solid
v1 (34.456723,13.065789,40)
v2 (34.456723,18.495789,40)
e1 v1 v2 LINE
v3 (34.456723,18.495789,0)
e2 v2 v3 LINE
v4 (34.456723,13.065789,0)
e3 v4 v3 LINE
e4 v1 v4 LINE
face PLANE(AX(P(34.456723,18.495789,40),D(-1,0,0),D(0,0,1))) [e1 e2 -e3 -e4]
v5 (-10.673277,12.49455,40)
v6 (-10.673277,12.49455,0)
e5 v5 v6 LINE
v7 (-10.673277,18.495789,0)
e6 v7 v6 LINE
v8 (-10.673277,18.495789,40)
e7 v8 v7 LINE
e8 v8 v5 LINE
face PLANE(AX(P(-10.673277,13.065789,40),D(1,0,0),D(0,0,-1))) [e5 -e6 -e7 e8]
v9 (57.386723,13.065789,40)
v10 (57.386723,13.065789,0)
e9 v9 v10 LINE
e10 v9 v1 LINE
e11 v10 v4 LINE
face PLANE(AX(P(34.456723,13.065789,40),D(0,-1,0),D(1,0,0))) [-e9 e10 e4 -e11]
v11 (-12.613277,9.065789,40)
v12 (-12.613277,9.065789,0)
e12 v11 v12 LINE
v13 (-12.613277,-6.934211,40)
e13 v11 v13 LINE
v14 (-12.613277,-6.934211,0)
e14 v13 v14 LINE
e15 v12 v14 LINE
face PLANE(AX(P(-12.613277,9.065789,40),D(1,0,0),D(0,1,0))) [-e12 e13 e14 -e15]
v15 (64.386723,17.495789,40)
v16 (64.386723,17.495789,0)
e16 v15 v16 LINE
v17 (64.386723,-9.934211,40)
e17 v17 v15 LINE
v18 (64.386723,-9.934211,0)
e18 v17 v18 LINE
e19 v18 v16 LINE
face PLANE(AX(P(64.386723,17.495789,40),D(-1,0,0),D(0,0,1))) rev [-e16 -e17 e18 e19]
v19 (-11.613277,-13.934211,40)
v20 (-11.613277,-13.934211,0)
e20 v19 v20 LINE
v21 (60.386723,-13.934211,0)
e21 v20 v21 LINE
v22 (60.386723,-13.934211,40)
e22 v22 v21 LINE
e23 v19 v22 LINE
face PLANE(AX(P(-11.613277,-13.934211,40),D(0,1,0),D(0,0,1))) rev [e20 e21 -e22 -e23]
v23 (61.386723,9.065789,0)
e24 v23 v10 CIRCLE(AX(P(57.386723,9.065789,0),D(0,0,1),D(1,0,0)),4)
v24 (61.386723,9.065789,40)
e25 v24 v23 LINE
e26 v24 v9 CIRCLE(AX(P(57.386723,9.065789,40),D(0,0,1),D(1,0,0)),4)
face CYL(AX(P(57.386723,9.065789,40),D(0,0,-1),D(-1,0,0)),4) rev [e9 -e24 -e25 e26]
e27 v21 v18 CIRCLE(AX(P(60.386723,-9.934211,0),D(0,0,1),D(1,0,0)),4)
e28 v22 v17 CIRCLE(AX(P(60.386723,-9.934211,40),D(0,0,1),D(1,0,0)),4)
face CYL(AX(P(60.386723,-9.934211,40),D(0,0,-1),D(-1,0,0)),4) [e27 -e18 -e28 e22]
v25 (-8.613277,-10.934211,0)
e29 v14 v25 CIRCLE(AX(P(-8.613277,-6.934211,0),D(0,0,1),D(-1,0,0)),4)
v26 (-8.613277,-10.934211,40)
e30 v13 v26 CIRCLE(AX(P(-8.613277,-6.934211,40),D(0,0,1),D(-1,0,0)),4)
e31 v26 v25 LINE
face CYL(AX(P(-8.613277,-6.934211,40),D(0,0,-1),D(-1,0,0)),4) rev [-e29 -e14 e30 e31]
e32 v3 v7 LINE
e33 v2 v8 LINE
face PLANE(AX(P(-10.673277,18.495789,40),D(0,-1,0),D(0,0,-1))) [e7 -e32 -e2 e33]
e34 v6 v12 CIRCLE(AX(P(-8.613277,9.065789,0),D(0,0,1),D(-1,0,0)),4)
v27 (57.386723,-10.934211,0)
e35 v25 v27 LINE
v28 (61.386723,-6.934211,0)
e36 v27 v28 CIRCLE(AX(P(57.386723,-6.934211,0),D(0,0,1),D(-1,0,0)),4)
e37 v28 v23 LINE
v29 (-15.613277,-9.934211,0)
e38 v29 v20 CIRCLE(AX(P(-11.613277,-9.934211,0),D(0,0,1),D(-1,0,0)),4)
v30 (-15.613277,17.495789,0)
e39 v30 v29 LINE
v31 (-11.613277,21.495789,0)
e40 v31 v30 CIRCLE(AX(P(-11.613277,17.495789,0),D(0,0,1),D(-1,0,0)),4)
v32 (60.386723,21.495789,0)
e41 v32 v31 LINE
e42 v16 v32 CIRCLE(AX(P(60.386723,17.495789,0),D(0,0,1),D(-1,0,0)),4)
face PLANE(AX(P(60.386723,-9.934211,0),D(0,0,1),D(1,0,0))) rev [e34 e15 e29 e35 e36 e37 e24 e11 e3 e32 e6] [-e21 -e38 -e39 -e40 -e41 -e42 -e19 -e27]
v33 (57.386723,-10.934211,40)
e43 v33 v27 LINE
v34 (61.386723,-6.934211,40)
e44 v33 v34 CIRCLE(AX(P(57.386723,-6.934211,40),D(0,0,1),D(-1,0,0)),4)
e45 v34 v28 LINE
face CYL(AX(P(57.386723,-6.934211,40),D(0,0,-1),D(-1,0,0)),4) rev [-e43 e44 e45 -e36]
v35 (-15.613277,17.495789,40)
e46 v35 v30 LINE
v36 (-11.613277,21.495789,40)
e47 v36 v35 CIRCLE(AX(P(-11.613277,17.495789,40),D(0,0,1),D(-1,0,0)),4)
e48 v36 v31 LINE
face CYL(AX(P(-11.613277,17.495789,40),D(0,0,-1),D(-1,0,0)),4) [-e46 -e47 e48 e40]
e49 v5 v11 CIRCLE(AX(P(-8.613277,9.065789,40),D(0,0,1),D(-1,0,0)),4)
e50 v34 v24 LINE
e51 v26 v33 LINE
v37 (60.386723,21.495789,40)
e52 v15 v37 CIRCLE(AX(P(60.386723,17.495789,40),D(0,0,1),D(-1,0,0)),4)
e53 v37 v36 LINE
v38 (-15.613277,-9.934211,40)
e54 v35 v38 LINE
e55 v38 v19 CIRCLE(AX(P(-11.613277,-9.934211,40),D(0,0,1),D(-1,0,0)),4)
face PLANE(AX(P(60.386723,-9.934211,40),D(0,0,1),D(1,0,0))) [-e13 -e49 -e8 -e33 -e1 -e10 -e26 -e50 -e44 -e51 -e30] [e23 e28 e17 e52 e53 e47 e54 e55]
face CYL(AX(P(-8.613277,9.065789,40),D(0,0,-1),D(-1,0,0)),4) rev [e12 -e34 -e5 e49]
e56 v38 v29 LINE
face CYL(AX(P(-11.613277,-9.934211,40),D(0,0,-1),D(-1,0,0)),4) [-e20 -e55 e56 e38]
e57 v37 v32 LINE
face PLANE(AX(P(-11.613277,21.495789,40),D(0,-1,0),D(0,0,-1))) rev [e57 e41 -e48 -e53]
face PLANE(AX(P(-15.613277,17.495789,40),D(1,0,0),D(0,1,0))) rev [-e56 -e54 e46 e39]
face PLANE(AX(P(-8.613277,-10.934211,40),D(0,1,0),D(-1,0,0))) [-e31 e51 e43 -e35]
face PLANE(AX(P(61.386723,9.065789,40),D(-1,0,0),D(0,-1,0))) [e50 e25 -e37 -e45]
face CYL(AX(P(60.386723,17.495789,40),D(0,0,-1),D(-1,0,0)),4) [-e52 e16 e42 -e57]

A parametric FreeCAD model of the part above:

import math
import FreeCAD as App
import Part
import Sketcher
from FreeCAD import Vector
Q = App.Units.Quantity

doc = App.newDocument("Part")
body = doc.addObject("PartDesign::Body", "Body")

sketch1 = body.newObject("Sketcher::SketchObject", "Sketch")
sketch1.AttachmentSupport = (doc.getObject("XY_Plane"), [""])
sketch1.MapMode = "FlatFace"
sketch1.addGeometry(Part.LineSegment(Vector(60.4, 21.5, 0), Vector(-11.6, 21.5, 0)), False)
sketch1.addGeometry(Part.ArcOfCircle(Part.Circle(Vector(-11.6, 17.5, 0), Vector(0, 0, 1), 4), math.radians(90), math.radians(180)), False)
sketch1.addGeometry(Part.LineSegment(Vector(-15.6, 17.5, 0), Vector(-15.6, -9.9, 0)), False)
sketch1.addGeometry(Part.ArcOfCircle(Part.Circle(Vector(-11.6, -9.9, 0), Vector(0, 0, 1), 4), math.radians(180), math.radians(270)), False)
sketch1.addGeometry(Part.LineSegment(Vector(-11.6, -13.9, 0), Vector(60.4, -13.9, 0)), False)
sketch1.addGeometry(Part.ArcOfCircle(Part.Circle(Vector(60.4, -9.9, 0), Vector(0, 0, 1), 4), math.radians(-90), math.radians(0)), False)
sketch1.addGeometry(Part.LineSegment(Vector(64.4, -9.9, 0), Vector(64.4, 17.5, 0)), False)
sketch1.addGeometry(Part.ArcOfCircle(Part.Circle(Vector(60.4, 17.5, 0), Vector(0, 0, 1), 4), math.radians(0), math.radians(90)), False)
sketch1.addGeometry(Part.LineSegment(Vector(-10.7, 18.5, 0), Vector(34.5, 18.5, 0)), False)
sketch1.addGeometry(Part.LineSegment(Vector(34.5, 18.5, 0), Vector(34.5, 13.1, 0)), False)
sketch1.addGeometry(Part.LineSegment(Vector(34.5, 13.1, 0), Vector(57.4, 13.1, 0)), False)
sketch1.addGeometry(Part.ArcOfCircle(Part.Circle(Vector(57.4, 9.1, 0), Vector(0, 0, 1), 4), math.radians(0), math.radians(90)), False)
sketch1.addGeometry(Part.LineSegment(Vector(61.4, 9.1, 0), Vector(61.4, -6.9, 0)), False)
sketch1.addGeometry(Part.ArcOfCircle(Part.Circle(Vector(57.4, -6.9, 0), Vector(0, 0, 1), 4), math.radians(-90), math.radians(0)), False)
sketch1.addGeometry(Part.LineSegment(Vector(57.4, -10.9, 0), Vector(-8.6, -10.9, 0)), False)
sketch1.addGeometry(Part.ArcOfCircle(Part.Circle(Vector(-8.6, -6.9, 0), Vector(0, 0, 1), 4), math.radians(180), math.radians(270)), False)
sketch1.addGeometry(Part.LineSegment(Vector(-12.6, -6.9, 0), Vector(-12.6, 9.1, 0)), False)
sketch1.addGeometry(Part.ArcOfCircle(Part.Circle(Vector(-8.6, 9.1, 0), Vector(0, 0, 1), 4), math.radians(121), math.radians(180)), False)
sketch1.addGeometry(Part.LineSegment(Vector(-10.7, 12.5, 0), Vector(-10.7, 18.5, 0)), False)
sketch1.addConstraint(Sketcher.Constraint("Tangent", 0, 2, 1, 1))
sketch1.addConstraint(Sketcher.Constraint("Tangent", 1, 2, 2, 1))
sketch1.addConstraint(Sketcher.Constraint("Tangent", 2, 2, 3, 1))
sketch1.addConstraint(Sketcher.Constraint("Tangent", 3, 2, 4, 1))
sketch1.addConstraint(Sketcher.Constraint("Tangent", 4, 2, 5, 1))
sketch1.addConstraint(Sketcher.Constraint("Tangent", 5, 2, 6, 1))
sketch1.addConstraint(Sketcher.Constraint("Tangent", 6, 2, 7, 1))
sketch1.addConstraint(Sketcher.Constraint("Tangent", 7, 2, 0, 1))
sketch1.addConstraint(Sketcher.Constraint("Coincident", 8, 2, 9, 1))
sketch1.addConstraint(Sketcher.Constraint("Coincident", 9, 2, 10, 1))
sketch1.addConstraint(Sketcher.Constraint("Tangent", 10, 2, 11, 2))
sketch1.addConstraint(Sketcher.Constraint("Tangent", 11, 1, 12, 1))
sketch1.addConstraint(Sketcher.Constraint("Tangent", 12, 2, 13, 2))
sketch1.addConstraint(Sketcher.Constraint("Tangent", 13, 1, 14, 1))
sketch1.addConstraint(Sketcher.Constraint("Tangent", 14, 2, 15, 2))
sketch1.addConstraint(Sketcher.Constraint("Tangent", 15, 1, 16, 1))
sketch1.addConstraint(Sketcher.Constraint("Tangent", 16, 2, 17, 2))
sketch1.addConstraint(Sketcher.Constraint("Coincident", 17, 1, 18, 1))
sketch1.addConstraint(Sketcher.Constraint("Coincident", 18, 2, 8, 1))
sketch1.addConstraint(Sketcher.Constraint("Horizontal", 0))
sketch1.addConstraint(Sketcher.Constraint("Vertical", 2))
sketch1.addConstraint(Sketcher.Constraint("Horizontal", 4))
sketch1.addConstraint(Sketcher.Constraint("Vertical", 6))
sketch1.addConstraint(Sketcher.Constraint("Horizontal", 8))
sketch1.addConstraint(Sketcher.Constraint("Vertical", 9))
sketch1.addConstraint(Sketcher.Constraint("Horizontal", 10))
sketch1.addConstraint(Sketcher.Constraint("Vertical", 12))
sketch1.addConstraint(Sketcher.Constraint("Horizontal", 14))
sketch1.addConstraint(Sketcher.Constraint("Vertical", 16))
sketch1.addConstraint(Sketcher.Constraint("Vertical", 18))
sketch1.addConstraint(Sketcher.Constraint("Equal", 1, 3))
sketch1.addConstraint(Sketcher.Constraint("Equal", 3, 5))
sketch1.addConstraint(Sketcher.Constraint("Equal", 5, 7))
sketch1.addConstraint(Sketcher.Constraint("Equal", 7, 11))
sketch1.addConstraint(Sketcher.Constraint("Equal", 11, 13))
sketch1.addConstraint(Sketcher.Constraint("Equal", 13, 15))
sketch1.addConstraint(Sketcher.Constraint("Equal", 15, 17))
sketch1.addConstraint(Sketcher.Constraint("Horizontal", 11, 3, 17, 3))
sketch1.addConstraint(Sketcher.Constraint("Radius", 1, Q("4 mm")))
sketch1.addConstraint(Sketcher.Constraint("DistanceX", 0, 2, 0, 1, Q("72 mm")))
sketch1.addConstraint(Sketcher.Constraint("DistanceX", 14, 2, 14, 1, Q("66 mm")))
sketch1.addConstraint(Sketcher.Constraint("DistanceY", 12, 2, 12, 1, Q("16 mm")))
sketch1.addConstraint(Sketcher.Constraint("DistanceX", 11, 3, 7, 3, Q("3 mm")))
sketch1.addConstraint(Sketcher.Constraint("DistanceY", 5, 3, 11, 3, Q("19 mm")))
sketch1.addConstraint(Sketcher.Constraint("DistanceY", 7, 3, 8, 2, Q("1 mm")))
sketch1.addConstraint(Sketcher.Constraint("DistanceX", 8, 1, 8, 2, Q("45.13 mm")))
sketch1.addConstraint(Sketcher.Constraint("DistanceX", 10, 1, 10, 2, Q("22.93 mm")))
sketch1.addConstraint(Sketcher.Constraint("DistanceY", 2, 2, 2, 1, Q("27.43 mm")))
sketch1.addConstraint(Sketcher.Constraint("DistanceY", -1, 1, 1, 3, Q("17.495789 mm")))
sketch1.addConstraint(Sketcher.Constraint("DistanceX", 1, 3, -1, 1, Q("11.613277 mm")))
pad1 = body.newObject("PartDesign::Pad", "Pad")
pad1.Profile = sketch1
pad1.Length = 40

doc.recompute()
